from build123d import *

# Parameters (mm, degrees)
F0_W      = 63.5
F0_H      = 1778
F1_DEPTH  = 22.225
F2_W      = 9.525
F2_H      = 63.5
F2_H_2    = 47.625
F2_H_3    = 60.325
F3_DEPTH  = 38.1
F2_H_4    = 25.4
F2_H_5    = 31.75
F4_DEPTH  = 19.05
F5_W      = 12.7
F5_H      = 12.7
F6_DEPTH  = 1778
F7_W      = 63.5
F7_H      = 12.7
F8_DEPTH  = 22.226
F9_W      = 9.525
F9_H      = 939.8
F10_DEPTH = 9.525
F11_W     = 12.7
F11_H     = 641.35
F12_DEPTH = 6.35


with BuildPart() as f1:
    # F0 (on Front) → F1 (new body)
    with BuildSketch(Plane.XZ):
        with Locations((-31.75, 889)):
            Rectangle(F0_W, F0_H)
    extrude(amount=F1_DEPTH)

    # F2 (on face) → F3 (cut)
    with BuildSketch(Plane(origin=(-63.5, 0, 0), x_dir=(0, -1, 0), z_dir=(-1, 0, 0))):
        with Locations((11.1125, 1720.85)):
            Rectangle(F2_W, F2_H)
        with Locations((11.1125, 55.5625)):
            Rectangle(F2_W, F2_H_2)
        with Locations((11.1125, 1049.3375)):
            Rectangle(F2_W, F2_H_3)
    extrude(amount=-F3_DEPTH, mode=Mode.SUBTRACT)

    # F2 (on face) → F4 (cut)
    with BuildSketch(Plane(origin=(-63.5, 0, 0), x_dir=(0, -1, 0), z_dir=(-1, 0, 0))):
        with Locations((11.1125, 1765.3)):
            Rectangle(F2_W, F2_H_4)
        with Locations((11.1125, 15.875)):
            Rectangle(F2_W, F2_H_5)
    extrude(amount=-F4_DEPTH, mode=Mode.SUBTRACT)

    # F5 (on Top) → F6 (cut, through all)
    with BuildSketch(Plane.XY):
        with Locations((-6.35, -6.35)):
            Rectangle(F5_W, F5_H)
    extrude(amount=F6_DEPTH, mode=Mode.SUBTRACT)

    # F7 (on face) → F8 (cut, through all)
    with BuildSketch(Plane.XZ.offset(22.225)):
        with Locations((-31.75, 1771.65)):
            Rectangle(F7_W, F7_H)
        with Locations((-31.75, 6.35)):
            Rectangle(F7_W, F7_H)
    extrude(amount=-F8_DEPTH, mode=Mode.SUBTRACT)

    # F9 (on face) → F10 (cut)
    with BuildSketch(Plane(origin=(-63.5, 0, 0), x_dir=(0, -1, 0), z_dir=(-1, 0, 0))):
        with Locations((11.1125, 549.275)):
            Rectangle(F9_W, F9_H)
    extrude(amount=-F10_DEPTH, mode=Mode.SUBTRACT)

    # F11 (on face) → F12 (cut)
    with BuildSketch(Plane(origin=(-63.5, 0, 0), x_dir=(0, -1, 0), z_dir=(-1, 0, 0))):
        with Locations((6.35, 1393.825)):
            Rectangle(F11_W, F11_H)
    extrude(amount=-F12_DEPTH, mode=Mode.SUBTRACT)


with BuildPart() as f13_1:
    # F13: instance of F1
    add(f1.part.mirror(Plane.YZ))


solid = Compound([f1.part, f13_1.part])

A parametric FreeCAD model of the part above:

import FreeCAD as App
import Part
import Sketcher
from FreeCAD import Vector
Q = App.Units.Quantity


def add_polygon(sketch, points):
    """Adds a closed chain of lines whose ends are joined by coincident constraints."""
    first, n = sketch.GeometryCount, len(points)
    for a, b in zip(points, points[1:] + points[:1]):
        sketch.addGeometry(Part.LineSegment(App.Vector(*a, 0), App.Vector(*b, 0)), False)
    for i in range(n):
        sketch.addConstraint(Sketcher.Constraint("Coincident", first + i, 2, first + (i + 1) % n, 1))

doc = App.newDocument("Part")
body = doc.addObject("PartDesign::Body", "Body")

# Sketch on XZ plane
sketch1 = doc.addObject("Sketcher::SketchObject", "Sketch")
body.addObject(sketch1)
sketch1.AttachmentSupport = (doc.XZ_Plane, [""])
sketch1.MapMode = "FlatFace"
add_polygon(sketch1, [(-64, 1778), (-64, 0), (0, 0), (0, 1778)])  # lines 0-3
sketch1.addConstraint([
    Sketcher.Constraint("Vertical", 0),
    Sketcher.Constraint("Horizontal", 1),
    Sketcher.Constraint("Vertical", 2),
    Sketcher.Constraint("Horizontal", 3),
    Sketcher.Constraint("Coincident", 1, 2, -1, 1),
    Sketcher.Constraint("DistanceY", 0, 2, 0, 1, Q("70 in")),
    Sketcher.Constraint("DistanceX", 1, 1, 1, 2, Q("2.5 in")),
])
pad1 = doc.addObject("PartDesign::Pad", "Pad")
body.addObject(pad1)
pad1.Profile = sketch1
pad1.Length = Q("0.875 in")

# Sketch on YZ plane
sketch2 = doc.addObject("Sketcher::SketchObject", "Sketch001")
body.addObject(sketch2)
sketch2.AttachmentSupport = (doc.YZ_Plane, [""])
sketch2.MapMode = "FlatFace"
sketch2.AttachmentOffset = App.Placement(Vector(0, 0, -2.5 * 25.4), App.Rotation())
add_polygon(sketch2, [(-6, 1753), (-6, 1689), (-16, 1689), (-16, 1753)])  # lines 0-3
add_polygon(sketch2, [(-6, 79), (-6, 32), (-16, 32), (-16, 79)])  # lines 4-7
add_polygon(sketch2, [(-6, 1080), (-6, 1019), (-16, 1019), (-16, 1080)])  # lines 8-11
sketch2.addConstraint([
    Sketcher.Constraint("Vertical", 0),
    Sketcher.Constraint("Horizontal", 1),
    Sketcher.Constraint("Vertical", 2),
    Sketcher.Constraint("Horizontal", 3),
    Sketcher.Constraint("Vertical", 4),
    Sketcher.Constraint("Horizontal", 5),
    Sketcher.Constraint("Vertical", 6),
    Sketcher.Constraint("Horizontal", 7),
    Sketcher.Constraint("Vertical", 8),
    Sketcher.Constraint("Horizontal", 9),
    Sketcher.Constraint("Vertical", 10),
    Sketcher.Constraint("Horizontal", 11),
    Sketcher.Constraint("Vertical", 3, 2, 4, 2),
    Sketcher.Constraint("Vertical", 2, 2, 5, 2),
    Sketcher.Constraint("Vertical", 7, 2, 8, 2),
    Sketcher.Constraint("Vertical", 6, 2, 9, 2),
    Sketcher.Constraint("DistanceY", 0, 2, 0, 1, Q("2.5 in")),
    Sketcher.Constraint("DistanceY", -1, 1, 2, 2, Q("69 in")),
    Sketcher.Constraint("DistanceY", 7, 2, 8, 2, Q("37 in")),
    Sketcher.Constraint("DistanceY", 10, 2, 1, 2, Q("24 in")),
    Sketcher.Constraint("DistanceX", 1, 2, 1, 1, Q("0.375 in")),
    Sketcher.Constraint("DistanceY", 4, 2, 4, 1, Q("1.875 in")),
    Sketcher.Constraint("DistanceY", 8, 2, 8, 1, Q("2.375 in")),
    Sketcher.Constraint("DistanceX", 0, 2, -1, 1, Q("0.25 in")),
])
pocket1 = doc.addObject("PartDesign::Pocket", "Pocket")
body.addObject(pocket1)
pocket1.Profile = sketch2
pocket1.Length = Q("1.5 in")
pocket1.Reversed = True

# Sketch on YZ plane
sketch3 = doc.addObject("Sketcher::SketchObject", "Sketch002")
body.addObject(sketch3)
sketch3.AttachmentSupport = (doc.YZ_Plane, [""])
sketch3.MapMode = "FlatFace"
sketch3.AttachmentOffset = App.Placement(Vector(0, 0, -2.5 * 25.4), App.Rotation())
add_polygon(sketch3, [(-6, 1778), (-6, 1753), (-16, 1753), (-16, 1778)])  # lines 0-3
add_polygon(sketch3, [(-6, 32), (-6, 0), (-16, 0), (-16, 32)])  # lines 4-7
sketch3.addConstraint([
    Sketcher.Constraint("Vertical", 0),
    Sketcher.Constraint("Horizontal", 1),
    Sketcher.Constraint("Vertical", 2),
    Sketcher.Constraint("Horizontal", 3),
    Sketcher.Constraint("Vertical", 4),
    Sketcher.Constraint("Horizontal", 5),
    Sketcher.Constraint("Vertical", 6),
    Sketcher.Constraint("Horizontal", 7),
    Sketcher.Constraint("PointOnObject", 4, 2, -1),
    Sketcher.Constraint("Vertical", 3, 2, 4, 2),
    Sketcher.Constraint("Vertical", 2, 2, 5, 2),
    Sketcher.Constraint("DistanceY", 0, 2, 0, 1, Q("1 in")),
    Sketcher.Constraint("DistanceY", -1, 1, 0, 2, Q("69 in")),
    Sketcher.Constraint("DistanceY", 4, 2, 4, 1, Q("1.25 in")),
    Sketcher.Constraint("DistanceX", 1, 2, 1, 1, Q("0.375 in")),
    Sketcher.Constraint("DistanceX", 0, 2, -1, 1, Q("0.25 in")),
])
pocket2 = doc.addObject("PartDesign::Pocket", "Pocket001")
body.addObject(pocket2)
pocket2.Profile = sketch3
pocket2.Length = Q("0.75 in")
pocket2.Reversed = True

# Sketch on XY plane
sketch4 = doc.addObject("Sketcher::SketchObject", "Sketch003")
body.addObject(sketch4)
sketch4.AttachmentSupport = (doc.XY_Plane, [""])
sketch4.MapMode = "FlatFace"
add_polygon(sketch4, [(-13, 0), (-13, -13), (0, -13), (0, 0)])  # lines 0-3
sketch4.addConstraint([
    Sketcher.Constraint("Vertical", 0),
    Sketcher.Constraint("Horizontal", 1),
    Sketcher.Constraint("Vertical", 2),
    Sketcher.Constraint("Horizontal", 3),
    Sketcher.Constraint("Coincident", 2, 2, -1, 1),
    Sketcher.Constraint("Equal", 3, 0),
    Sketcher.Constraint("DistanceX", 1, 1, 1, 2, Q("0.5 in")),
])
pocket3 = doc.addObject("PartDesign::Pocket", "Pocket002")
body.addObject(pocket3)
pocket3.Profile = sketch4
pocket3.Type = "ThroughAll"
pocket3.Reversed = True

# Sketch on XZ plane
sketch5 = doc.addObject("Sketcher::SketchObject", "Sketch004")
body.addObject(sketch5)
sketch5.AttachmentSupport = (doc.XZ_Plane, [""])
sketch5.MapMode = "FlatFace"
sketch5.AttachmentOffset = App.Placement(Vector(0, 0, 0.875 * 25.4), App.Rotation())
add_polygon(sketch5, [(-64, 1778), (-64, 1765), (0, 1765), (0, 1778)])  # lines 0-3
add_polygon(sketch5, [(-64, 13), (-64, 0), (0, 0), (0, 13)])  # lines 4-7
sketch5.addConstraint([
    Sketcher.Constraint("Vertical", 0),
    Sketcher.Constraint("Horizontal", 1),
    Sketcher.Constraint("Vertical", 2),
    Sketcher.Constraint("Horizontal", 3),
    Sketcher.Constraint("Vertical", 4),
    Sketcher.Constraint("Horizontal", 5),
    Sketcher.Constraint("Vertical", 6),
    Sketcher.Constraint("Horizontal", 7),
    Sketcher.Constraint("Coincident", 5, 2, -1, 1),
    Sketcher.Constraint("PointOnObject", 1, 2, -2),
    Sketcher.Constraint("Vertical", 3, 2, 4, 2),
    Sketcher.Constraint("Equal", 2, 4),
    Sketcher.Constraint("DistanceX", 1, 1, 1, 2, Q("2.5 in")),
    Sketcher.Constraint("DistanceY", 0, 2, 0, 1, Q("0.5 in")),
    Sketcher.Constraint("DistanceY", -1, 1, 2, 2, Q("70 in")),
])
pocket4 = doc.addObject("PartDesign::Pocket", "Pocket003")
body.addObject(pocket4)
pocket4.Profile = sketch5
pocket4.Type = "ThroughAll"

# Sketch on YZ plane
sketch6 = doc.addObject("Sketcher::SketchObject", "Sketch005")
body.addObject(sketch6)
sketch6.AttachmentSupport = (doc.YZ_Plane, [""])
sketch6.MapMode = "FlatFace"
sketch6.AttachmentOffset = App.Placement(Vector(0, 0, -2.5 * 25.4), App.Rotation())
add_polygon(sketch6, [(-6, 1019), (-6, 79), (-16, 79), (-16, 1019)])  # lines 0-3
sketch6.addConstraint([
    Sketcher.Constraint("Vertical", 0),
    Sketcher.Constraint("Horizontal", 1),
    Sketcher.Constraint("Vertical", 2),
    Sketcher.Constraint("Horizontal", 3),
    Sketcher.Constraint("DistanceY", 0, 2, 0, 1, Q("37 in")),
    Sketcher.Constraint("DistanceX", 1, 2, 1, 1, Q("0.375 in")),
    Sketcher.Constraint("DistanceX", 0, 2, -1, 1, Q("0.25 in")),
    Sketcher.Constraint("DistanceY", -1, 1, 0, 2, Q("3.125 in")),
])
pocket5 = doc.addObject("PartDesign::Pocket", "Pocket004")
body.addObject(pocket5)
pocket5.Profile = sketch6
pocket5.Length = Q("0.375 in")
pocket5.Reversed = True

# Sketch on YZ plane
sketch7 = doc.addObject("Sketcher::SketchObject", "Sketch006")
body.addObject(sketch7)
sketch7.AttachmentSupport = (doc.YZ_Plane, [""])
sketch7.MapMode = "FlatFace"
sketch7.AttachmentOffset = App.Placement(Vector(0, 0, -2.5 * 25.4), App.Rotation())
add_polygon(sketch7, [(0, 1714), (0, 1073), (-13, 1073), (-13, 1714)])  # lines 0-3
sketch7.addConstraint([
    Sketcher.Constraint("Vertical", 0),
    Sketcher.Constraint("Horizontal", 1),
    Sketcher.Constraint("Vertical", 2),
    Sketcher.Constraint("Horizontal", 3),
    Sketcher.Constraint("PointOnObject", 0, 2, -2),
    Sketcher.Constraint("DistanceX", 1, 2, 1, 1, Q("0.5 in")),
    Sketcher.Constraint("DistanceY", 0, 2, 0, 1, Q("25.25 in")),
    Sketcher.Constraint("DistanceY", -1, 1, 2, 2, Q("67.5 in")),
])
pocket6 = doc.addObject("PartDesign::Pocket", "Pocket005")
body.addObject(pocket6)
pocket6.Profile = sketch7
pocket6.Length = Q("0.25 in")
pocket6.Reversed = True
body2 = doc.addObject("PartDesign::Body", "Body001")
doc.recompute()

mirroring = doc.addObject("Part::Mirroring", "Mirroring")
mirroring.Source = body
mirroring.Base = Vector(0, 0, 0)
mirroring.Normal = Vector(1, 0, 0)
body2.BaseFeature = mirroring
doc.recompute()
mirroring.Visibility = False

doc.recompute()
